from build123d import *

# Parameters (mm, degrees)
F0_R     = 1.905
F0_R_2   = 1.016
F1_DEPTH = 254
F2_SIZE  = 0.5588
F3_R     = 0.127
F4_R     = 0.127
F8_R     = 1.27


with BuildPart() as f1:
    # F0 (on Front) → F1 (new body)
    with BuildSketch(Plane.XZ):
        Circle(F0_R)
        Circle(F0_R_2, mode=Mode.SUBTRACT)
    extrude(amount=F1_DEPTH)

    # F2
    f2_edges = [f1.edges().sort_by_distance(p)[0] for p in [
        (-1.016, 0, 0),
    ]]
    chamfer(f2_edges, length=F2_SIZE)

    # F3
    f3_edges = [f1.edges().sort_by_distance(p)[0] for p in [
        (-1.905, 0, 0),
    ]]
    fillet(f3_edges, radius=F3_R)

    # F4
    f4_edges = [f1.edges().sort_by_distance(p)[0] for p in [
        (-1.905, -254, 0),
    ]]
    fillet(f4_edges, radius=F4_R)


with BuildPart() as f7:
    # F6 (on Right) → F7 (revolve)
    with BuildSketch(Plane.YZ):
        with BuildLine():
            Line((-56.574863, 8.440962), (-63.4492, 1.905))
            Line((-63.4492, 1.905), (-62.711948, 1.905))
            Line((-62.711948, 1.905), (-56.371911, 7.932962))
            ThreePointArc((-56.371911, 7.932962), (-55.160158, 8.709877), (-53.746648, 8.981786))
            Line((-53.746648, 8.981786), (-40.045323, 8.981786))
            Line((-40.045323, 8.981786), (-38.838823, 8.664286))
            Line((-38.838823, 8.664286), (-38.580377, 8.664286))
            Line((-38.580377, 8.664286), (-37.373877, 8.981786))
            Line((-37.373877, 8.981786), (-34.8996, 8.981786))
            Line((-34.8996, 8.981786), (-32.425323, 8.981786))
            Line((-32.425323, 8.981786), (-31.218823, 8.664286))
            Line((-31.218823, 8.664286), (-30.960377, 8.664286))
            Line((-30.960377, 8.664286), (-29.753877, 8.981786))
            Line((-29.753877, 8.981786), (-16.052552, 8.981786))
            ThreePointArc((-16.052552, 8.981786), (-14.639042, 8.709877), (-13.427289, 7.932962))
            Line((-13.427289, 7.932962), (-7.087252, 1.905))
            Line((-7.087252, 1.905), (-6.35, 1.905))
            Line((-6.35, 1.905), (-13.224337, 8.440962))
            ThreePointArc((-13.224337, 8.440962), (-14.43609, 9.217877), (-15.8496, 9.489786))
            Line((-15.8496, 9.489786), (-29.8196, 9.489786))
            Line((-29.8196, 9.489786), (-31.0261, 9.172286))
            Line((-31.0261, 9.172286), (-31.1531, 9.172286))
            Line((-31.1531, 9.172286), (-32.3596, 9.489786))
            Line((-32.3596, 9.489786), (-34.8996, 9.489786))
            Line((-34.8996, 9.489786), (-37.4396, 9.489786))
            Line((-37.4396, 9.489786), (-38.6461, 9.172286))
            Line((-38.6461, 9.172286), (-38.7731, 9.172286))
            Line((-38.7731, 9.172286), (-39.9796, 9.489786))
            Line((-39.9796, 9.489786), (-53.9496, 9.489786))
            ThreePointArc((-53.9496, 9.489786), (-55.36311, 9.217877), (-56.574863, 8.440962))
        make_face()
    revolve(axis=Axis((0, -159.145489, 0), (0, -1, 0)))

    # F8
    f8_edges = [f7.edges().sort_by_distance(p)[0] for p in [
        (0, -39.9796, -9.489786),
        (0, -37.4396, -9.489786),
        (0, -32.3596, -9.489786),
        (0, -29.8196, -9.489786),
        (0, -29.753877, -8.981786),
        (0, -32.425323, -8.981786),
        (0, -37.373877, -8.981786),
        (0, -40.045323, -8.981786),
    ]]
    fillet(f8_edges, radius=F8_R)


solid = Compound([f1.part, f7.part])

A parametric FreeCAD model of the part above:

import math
import FreeCAD as App
import Part
import Sketcher
from FreeCAD import Vector
Q = App.Units.Quantity


def edges_at(feature, points):
    """Names of the edges that pass closest to the given points."""
    edges = feature.Shape.Edges
    near = lambda p: min(range(len(edges)), key=lambda i: edges[i].distToShape(Part.Vertex(*p))[0])
    return sorted({f"Edge{near(p) + 1}" for p in points})

doc = App.newDocument("Part")
body = doc.addObject("PartDesign::Body", "Body")

# Sketch on XZ plane
sketch1 = body.newObject("Sketcher::SketchObject", "Sketch")
sketch1.AttachmentSupport = (doc.getObject("XZ_Plane"), [""])
sketch1.MapMode = "FlatFace"
sketch1.addGeometry([
    Part.Circle(Vector(0, 0, 0), Vector(0, 0, 1), 1.9),
    Part.Circle(Vector(0, 0, 0), Vector(0, 0, 1), 1),
], False)
sketch1.addConstraint([
    Sketcher.Constraint("Coincident", 0, 3, -1, 1),
    Sketcher.Constraint("Coincident", 1, 3, -1, 1),
    Sketcher.Constraint("Diameter", 0, Q("0.15 in")),
    Sketcher.Constraint("Diameter", 1, Q("0.08 in")),
])
pad1 = body.newObject("PartDesign::Pad", "Pad")
pad1.Profile = sketch1
pad1.Length = Q("10 in")
doc.recompute()

chamfer = body.newObject("PartDesign::Chamfer", "Chamfer")
chamfer.Base = (pad1, edges_at(pad1, [(-1.016, 0, 0)]))
chamfer.Size = Q("0.022 in")
doc.recompute()

fillet = body.newObject("PartDesign::Fillet", "Fillet")
fillet.Base = (chamfer, edges_at(chamfer, [(-1.905, 0, 0)]))
fillet.Radius = Q("0.005 in")
doc.recompute()

fillet2 = body.newObject("PartDesign::Fillet", "Fillet001")
fillet2.Base = (fillet, edges_at(fillet, [(-1.905, -254, 0)]))
fillet2.Radius = Q("0.005 in")
body2 = doc.addObject("PartDesign::Body", "Body001")

# Sketch on YZ plane
sketch2 = body2.newObject("Sketcher::SketchObject", "Sketch001")
sketch2.AttachmentSupport = (doc.getObject("YZ_Plane001"), [""])
sketch2.MapMode = "FlatFace"
sketch2.addGeometry([
    Part.LineSegment(Vector(-56.57, 8.44, 0), Vector(-63.45, 1.91, 0)),  # 0
    Part.LineSegment(Vector(-63.45, 1.91, 0), Vector(-62.71, 1.91, 0)),  # 1
    Part.LineSegment(Vector(-62.71, 1.91, 0), Vector(-56.37, 7.93, 0)),  # 2
    Part.ArcOfCircle(Part.Circle(Vector(-53.75, 5.17, 0), Vector(0, 0, 1), 3.81), math.radians(90), math.radians(134)),  # 3
    Part.LineSegment(Vector(-53.75, 8.98, 0), Vector(-40.05, 8.98, 0)),  # 4
    Part.LineSegment(Vector(-40.05, 8.98, 0), Vector(-38.84, 8.66, 0)),  # 5
    Part.LineSegment(Vector(-38.84, 8.66, 0), Vector(-38.58, 8.66, 0)),  # 6
    Part.LineSegment(Vector(-38.58, 8.66, 0), Vector(-37.37, 8.98, 0)),  # 7
    Part.LineSegment(Vector(-37.37, 8.98, 0), Vector(-32.43, 8.98, 0)),  # 8
    Part.LineSegment(Vector(-32.43, 8.98, 0), Vector(-31.22, 8.66, 0)),  # 9
    Part.LineSegment(Vector(-31.22, 8.66, 0), Vector(-30.96, 8.66, 0)),  # 10
    Part.LineSegment(Vector(-30.96, 8.66, 0), Vector(-29.75, 8.98, 0)),  # 11
    Part.LineSegment(Vector(-29.75, 8.98, 0), Vector(-16.05, 8.98, 0)),  # 12
    Part.ArcOfCircle(Part.Circle(Vector(-16.05, 5.17, 0), Vector(0, 0, 1), 3.81), math.radians(46), math.radians(90)),  # 13
    Part.LineSegment(Vector(-13.43, 7.93, 0), Vector(-7.09, 1.91, 0)),  # 14
    Part.LineSegment(Vector(-7.09, 1.91, 0), Vector(-6.35, 1.91, 0)),  # 15
    Part.LineSegment(Vector(-6.35, 1.91, 0), Vector(-13.22, 8.44, 0)),  # 16
    Part.ArcOfCircle(Part.Circle(Vector(-15.85, 5.68, 0), Vector(0, 0, 1), 3.81), math.radians(46), math.radians(90)),  # 17
    Part.LineSegment(Vector(-15.85, 9.49, 0), Vector(-29.82, 9.49, 0)),  # 18
    Part.LineSegment(Vector(-29.82, 9.49, 0), Vector(-31.03, 9.17, 0)),  # 19
    Part.LineSegment(Vector(-31.03, 9.17, 0), Vector(-31.15, 9.17, 0)),  # 20
    Part.LineSegment(Vector(-31.15, 9.17, 0), Vector(-32.36, 9.49, 0)),  # 21
    Part.LineSegment(Vector(-32.36, 9.49, 0), Vector(-37.44, 9.49, 0)),  # 22
    Part.LineSegment(Vector(-37.44, 9.49, 0), Vector(-38.65, 9.17, 0)),  # 23
    Part.LineSegment(Vector(-38.65, 9.17, 0), Vector(-38.77, 9.17, 0)),  # 24
    Part.LineSegment(Vector(-38.77, 9.17, 0), Vector(-39.98, 9.49, 0)),  # 25
    Part.LineSegment(Vector(-39.98, 9.49, 0), Vector(-53.95, 9.49, 0)),  # 26
    Part.ArcOfCircle(Part.Circle(Vector(-53.95, 5.68, 0), Vector(0, 0, 1), 3.81), math.radians(90), math.radians(134)),  # 27
], False)
sketch2.addConstraint([
    Sketcher.Constraint("Coincident", 0, 2, 1, 1),
    Sketcher.Constraint("Coincident", 1, 2, 2, 1),
    Sketcher.Constraint("Tangent", 2, 2, 3, 2),
    Sketcher.Constraint("Tangent", 3, 1, 4, 1),
    Sketcher.Constraint("Coincident", 4, 2, 5, 1),
    Sketcher.Constraint("Coincident", 5, 2, 6, 1),
    Sketcher.Constraint("Coincident", 6, 2, 7, 1),
    Sketcher.Constraint("Coincident", 7, 2, 8, 1),
    Sketcher.Constraint("Coincident", 8, 2, 9, 1),
    Sketcher.Constraint("Coincident", 9, 2, 10, 1),
    Sketcher.Constraint("Coincident", 10, 2, 11, 1),
    Sketcher.Constraint("Coincident", 11, 2, 12, 1),
    Sketcher.Constraint("Tangent", 12, 2, 13, 2),
    Sketcher.Constraint("Tangent", 13, 1, 14, 1),
    Sketcher.Constraint("Coincident", 14, 2, 15, 1),
    Sketcher.Constraint("Coincident", 15, 2, 16, 1),
    Sketcher.Constraint("Tangent", 16, 2, 17, 1),
    Sketcher.Constraint("Tangent", 17, 2, 18, 1),
    Sketcher.Constraint("Coincident", 18, 2, 19, 1),
    Sketcher.Constraint("Coincident", 19, 2, 20, 1),
    Sketcher.Constraint("Coincident", 20, 2, 21, 1),
    Sketcher.Constraint("Coincident", 21, 2, 22, 1),
    Sketcher.Constraint("Coincident", 22, 2, 23, 1),
    Sketcher.Constraint("Coincident", 23, 2, 24, 1),
    Sketcher.Constraint("Coincident", 24, 2, 25, 1),
    Sketcher.Constraint("Coincident", 25, 2, 26, 1),
    Sketcher.Constraint("Tangent", 26, 2, 27, 1),
    Sketcher.Constraint("Tangent", 27, 2, 0, 1),
    Sketcher.Constraint("Horizontal", 1),
    Sketcher.Constraint("Horizontal", 4),
    Sketcher.Constraint("Horizontal", 6),
    Sketcher.Constraint("Horizontal", 8),
    Sketcher.Constraint("Horizontal", 10),
    Sketcher.Constraint("Horizontal", 12),
    Sketcher.Constraint("Horizontal", 15),
    Sketcher.Constraint("Horizontal", 18),
    Sketcher.Constraint("Horizontal", 20),
    Sketcher.Constraint("Horizontal", 22),
    Sketcher.Constraint("Horizontal", 24),
    Sketcher.Constraint("Horizontal", 26),
    Sketcher.Constraint("Equal", 3, 13),
    Sketcher.Constraint("Equal", 13, 17),
    Sketcher.Constraint("Equal", 17, 27),
    Sketcher.Constraint("Parallel", 0, 2),
    Sketcher.Constraint("Parallel", 5, 9),
    Sketcher.Constraint("Parallel", 7, 11),
    Sketcher.Constraint("Parallel", 14, 16),
    Sketcher.Constraint("Parallel", 11, 19),
    Sketcher.Constraint("Parallel", 9, 21),
    Sketcher.Constraint("Parallel", 19, 23),
    Sketcher.Constraint("Parallel", 21, 25),
    Sketcher.Constraint("Horizontal", 3, 3, 13, 3),
    Sketcher.Constraint("Horizontal", 17, 3, 27, 3),
    Sketcher.Constraint("Horizontal", 4, 2, 7, 2),
    Sketcher.Constraint("Horizontal", 6, 2, 9, 2),
    Sketcher.Constraint("Horizontal", 2, 2, 13, 1),
    Sketcher.Constraint("Horizontal", 1, 2, 14, 2),
    Sketcher.Constraint("Horizontal", 18, 2, 21, 2),
    Sketcher.Constraint("Horizontal", 20, 2, 23, 2),
    Sketcher.Constraint("Equal", 6, 10),
    Sketcher.Constraint("Equal", 4, 12),
    Sketcher.Constraint("Equal", 1, 15),
    Sketcher.Constraint("Equal", 20, 24),
    Sketcher.Constraint("Equal", 18, 26),
    Sketcher.Constraint("Equal", 5, 7),
    Sketcher.Constraint("Equal", 11, 19),
    Sketcher.Constraint("Radius", 3, Q("0.1500001 in")),
    Sketcher.Constraint("DistanceX", 22, 2, 22, 1, Q("0.2 in")),
    Sketcher.Constraint("DistanceX", 18, 2, 18, 1, Q("0.55 in")),
    Sketcher.Constraint("DistanceX", 27, 3, 17, 3, Q("1.4999999 in")),
    Sketcher.Constraint("DistanceX", 4, 2, 8, 2, Q("0.3 in")),
    Sketcher.Constraint("DistanceX", 20, 2, 20, 1, Q("0.005 in")),
    Sketcher.Constraint("DistanceX", 15, 2, -1, 1, Q("0.25 in")),
    Sketcher.Constraint("DistanceY", 13, 3, 17, 3, Q("0.02 in")),
    Sketcher.Constraint("DistanceX", 17, 3, -1, 1, Q("0.624 in")),
    Sketcher.Constraint("DistanceY", -1, 1, 0, 2, Q("0.075 in")),
    Sketcher.Constraint("DistanceY", 5, 2, 4, 2, Q("0.0125 in")),
    Sketcher.Constraint("DistanceX", 1, 1, 1, 2, 0.737252),
    Sketcher.Constraint("DistanceX", 1, 2, 3, 3, 8.965301),
    Sketcher.Constraint("DistanceX", 4, 1, 4, 2, 13.701325),
])
revolution = body2.newObject("PartDesign::Revolution", "Revolution")
revolution.Profile = sketch2
revolution.ReferenceAxis = (sketch2, ["H_Axis"])
revolution.Angle = 360
doc.recompute()

fillet3 = body2.newObject("PartDesign::Fillet", "Fillet002")
fillet3.Base = (revolution, edges_at(revolution, [
    (0, -39.98, -9.49),
    (0, -37.44, -9.49),
    (0, -32.36, -9.49),
    (0, -29.82, -9.49),
    (0, -29.754, -8.982),
    (0, -32.425, -8.982),
    (0, -37.374, -8.982),
    (0, -40.045, -8.982),
]))
fillet3.Radius = Q("0.05 in")

doc.recompute()
